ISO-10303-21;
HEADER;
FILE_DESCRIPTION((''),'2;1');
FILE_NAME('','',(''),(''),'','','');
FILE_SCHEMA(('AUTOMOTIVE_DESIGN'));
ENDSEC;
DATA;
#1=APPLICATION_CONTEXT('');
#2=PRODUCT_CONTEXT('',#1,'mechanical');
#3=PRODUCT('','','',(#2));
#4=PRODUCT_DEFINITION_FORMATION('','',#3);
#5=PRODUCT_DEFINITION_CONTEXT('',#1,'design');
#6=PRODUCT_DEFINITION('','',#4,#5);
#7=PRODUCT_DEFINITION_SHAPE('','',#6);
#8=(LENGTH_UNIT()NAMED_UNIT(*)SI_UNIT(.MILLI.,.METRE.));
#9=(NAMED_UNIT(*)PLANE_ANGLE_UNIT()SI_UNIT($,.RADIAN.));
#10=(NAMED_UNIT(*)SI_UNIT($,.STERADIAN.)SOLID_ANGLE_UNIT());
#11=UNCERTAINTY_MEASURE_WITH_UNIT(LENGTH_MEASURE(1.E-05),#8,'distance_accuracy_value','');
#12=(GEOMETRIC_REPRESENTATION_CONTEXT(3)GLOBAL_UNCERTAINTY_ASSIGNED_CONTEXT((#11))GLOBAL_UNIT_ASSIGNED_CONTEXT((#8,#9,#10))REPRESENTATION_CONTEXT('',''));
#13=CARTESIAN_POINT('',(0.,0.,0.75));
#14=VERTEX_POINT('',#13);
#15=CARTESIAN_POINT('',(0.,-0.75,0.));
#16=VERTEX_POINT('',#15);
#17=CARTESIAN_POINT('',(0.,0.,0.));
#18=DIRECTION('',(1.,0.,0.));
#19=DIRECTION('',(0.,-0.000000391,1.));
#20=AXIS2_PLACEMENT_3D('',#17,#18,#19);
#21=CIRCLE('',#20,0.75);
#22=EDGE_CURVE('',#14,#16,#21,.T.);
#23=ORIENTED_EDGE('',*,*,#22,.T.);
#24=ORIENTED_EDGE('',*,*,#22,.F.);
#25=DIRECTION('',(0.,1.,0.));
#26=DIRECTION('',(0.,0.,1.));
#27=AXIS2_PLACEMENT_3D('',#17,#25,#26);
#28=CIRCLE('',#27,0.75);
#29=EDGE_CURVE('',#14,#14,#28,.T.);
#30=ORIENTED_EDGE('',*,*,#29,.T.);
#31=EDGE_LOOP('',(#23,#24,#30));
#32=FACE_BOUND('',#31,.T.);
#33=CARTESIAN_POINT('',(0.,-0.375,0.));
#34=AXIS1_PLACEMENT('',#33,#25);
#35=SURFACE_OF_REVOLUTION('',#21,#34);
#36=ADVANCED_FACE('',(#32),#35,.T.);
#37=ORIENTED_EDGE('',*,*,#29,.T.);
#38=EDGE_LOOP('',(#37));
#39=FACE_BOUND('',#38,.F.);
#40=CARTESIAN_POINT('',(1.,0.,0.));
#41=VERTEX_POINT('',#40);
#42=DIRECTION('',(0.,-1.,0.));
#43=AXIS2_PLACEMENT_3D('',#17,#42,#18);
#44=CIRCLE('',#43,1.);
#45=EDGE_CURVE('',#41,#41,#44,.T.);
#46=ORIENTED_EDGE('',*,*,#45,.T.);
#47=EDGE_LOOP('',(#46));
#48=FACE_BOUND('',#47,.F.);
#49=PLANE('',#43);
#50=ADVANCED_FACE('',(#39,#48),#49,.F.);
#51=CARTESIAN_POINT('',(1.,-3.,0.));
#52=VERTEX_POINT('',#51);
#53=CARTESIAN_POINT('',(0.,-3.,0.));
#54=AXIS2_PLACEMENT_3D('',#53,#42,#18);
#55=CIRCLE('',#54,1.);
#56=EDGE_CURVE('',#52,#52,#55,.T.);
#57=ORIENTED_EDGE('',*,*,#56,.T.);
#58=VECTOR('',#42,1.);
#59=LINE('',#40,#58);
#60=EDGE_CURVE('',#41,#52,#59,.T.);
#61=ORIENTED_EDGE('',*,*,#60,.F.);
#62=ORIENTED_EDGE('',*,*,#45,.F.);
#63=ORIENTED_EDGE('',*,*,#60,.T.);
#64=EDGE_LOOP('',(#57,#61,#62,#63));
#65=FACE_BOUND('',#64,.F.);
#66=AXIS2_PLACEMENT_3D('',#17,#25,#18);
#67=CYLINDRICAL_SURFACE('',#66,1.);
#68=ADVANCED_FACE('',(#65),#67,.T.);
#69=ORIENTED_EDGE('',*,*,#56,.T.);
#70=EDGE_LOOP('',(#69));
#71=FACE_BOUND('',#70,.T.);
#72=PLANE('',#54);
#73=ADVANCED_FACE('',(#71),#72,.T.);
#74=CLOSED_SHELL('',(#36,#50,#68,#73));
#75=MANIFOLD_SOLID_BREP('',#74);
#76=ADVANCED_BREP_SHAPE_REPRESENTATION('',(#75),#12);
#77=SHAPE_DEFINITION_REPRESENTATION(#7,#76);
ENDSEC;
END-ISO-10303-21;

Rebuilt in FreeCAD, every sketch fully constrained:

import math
import FreeCAD as App
import Part
import Sketcher
from FreeCAD import Vector

doc = App.newDocument("Part")
body = doc.addObject("PartDesign::Body", "Body")

sketch1 = body.newObject("Sketcher::SketchObject", "Sketch")
sketch1.AttachmentSupport = (doc.getObject("XZ_Plane"), [""])
sketch1.MapMode = "FlatFace"
sketch1.addGeometry(Part.Circle(Vector(0, 0, 0), Vector(0, 0, 1), 1), False)
sketch1.addConstraint([
    Sketcher.Constraint("Coincident", 0, 3, -1, 1),
    Sketcher.Constraint("Diameter", 0, 2.0),
])
pad1 = body.newObject("PartDesign::Pad", "Pad")
pad1.Profile = sketch1
pad1.Length = 3

sketch2 = body.newObject("Sketcher::SketchObject", "Sketch001")
sketch2.AttachmentSupport = (doc.getObject("YZ_Plane"), [""])
sketch2.MapMode = "FlatFace"
sketch2.addGeometry([
    Part.LineSegment(Vector(0, 0, 0), Vector(0, 0.8, 0)),
    Part.ArcOfCircle(Part.Circle(Vector(0, 0, 0), Vector(0, 0, 1), 0.8), math.radians(90), math.radians(180)),
    Part.LineSegment(Vector(-0.8, 0, 0), Vector(0, 0, 0)),
], False)
sketch2.addConstraint([
    Sketcher.Constraint("Coincident", 0, 2, 1, 1),
    Sketcher.Constraint("Coincident", 1, 2, 2, 1),
    Sketcher.Constraint("Coincident", 2, 2, 0, 1),
    Sketcher.Constraint("Vertical", 0),
    Sketcher.Constraint("Horizontal", 2),
    Sketcher.Constraint("Coincident", 1, 3, -1, 1),
    Sketcher.Constraint("Coincident", 2, 2, -1, 1),
    Sketcher.Constraint("Radius", 1, 0.75),
])
groove = body.newObject("PartDesign::Groove", "Groove")
groove.Profile = sketch2
groove.ReferenceAxis = (sketch2, ["H_Axis"])
groove.Angle = 360

doc.recompute()
